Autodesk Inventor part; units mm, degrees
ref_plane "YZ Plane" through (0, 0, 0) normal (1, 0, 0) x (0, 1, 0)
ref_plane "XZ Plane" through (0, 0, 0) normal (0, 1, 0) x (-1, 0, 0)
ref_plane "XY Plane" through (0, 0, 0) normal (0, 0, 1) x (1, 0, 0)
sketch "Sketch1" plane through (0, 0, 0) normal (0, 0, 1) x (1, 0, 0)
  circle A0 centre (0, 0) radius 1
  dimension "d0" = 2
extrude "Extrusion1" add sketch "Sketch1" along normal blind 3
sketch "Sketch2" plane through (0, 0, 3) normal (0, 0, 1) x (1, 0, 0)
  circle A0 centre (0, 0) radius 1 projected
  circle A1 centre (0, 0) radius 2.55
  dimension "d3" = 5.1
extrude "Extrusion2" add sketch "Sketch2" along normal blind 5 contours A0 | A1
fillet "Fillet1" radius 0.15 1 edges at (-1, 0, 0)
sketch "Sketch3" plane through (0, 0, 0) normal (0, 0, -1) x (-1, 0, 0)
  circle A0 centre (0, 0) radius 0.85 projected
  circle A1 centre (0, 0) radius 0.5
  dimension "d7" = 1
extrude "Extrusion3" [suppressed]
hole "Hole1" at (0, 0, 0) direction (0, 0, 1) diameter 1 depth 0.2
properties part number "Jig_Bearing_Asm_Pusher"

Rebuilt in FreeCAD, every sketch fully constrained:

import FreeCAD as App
import Part
import Sketcher
from FreeCAD import Vector
Q = App.Units.Quantity


def edges_at(feature, points):
    """Names of the edges that pass closest to the given points."""
    edges = feature.Shape.Edges
    near = lambda p: min(range(len(edges)), key=lambda i: edges[i].distToShape(Part.Vertex(*p))[0])
    return sorted({f"Edge{near(p) + 1}" for p in points})

doc = App.newDocument("Part")
body = doc.addObject("PartDesign::Body", "Body")

# Sketch on XY plane
sketch1 = body.newObject("Sketcher::SketchObject", "Sketch")
sketch1.AttachmentSupport = (doc.getObject("XY_Plane"), [""])
sketch1.MapMode = "FlatFace"
sketch1.addGeometry(Part.Circle(Vector(0, 0, 0), Vector(0, 0, 1), 1), False)
sketch1.addConstraint(Sketcher.Constraint("Coincident", 0, 3, -1, 1))
sketch1.addConstraint(Sketcher.Constraint("Diameter", 0, Q("2 mm")))
pad1 = body.newObject("PartDesign::Pad", "Pad")
pad1.Profile = sketch1
pad1.Length = 3

# Sketch on XY plane
sketch2 = body.newObject("Sketcher::SketchObject", "Sketch001")
sketch2.AttachmentSupport = (doc.getObject("XY_Plane"), [""])
sketch2.MapMode = "FlatFace"
sketch2.AttachmentOffset = App.Placement(Vector(0, 0, 3), App.Rotation())
sketch2.addGeometry(Part.Circle(Vector(0, 0, 0), Vector(0, 0, 1), 2.5), False)
sketch2.addConstraint(Sketcher.Constraint("Coincident", 0, 3, -1, 1))
sketch2.addConstraint(Sketcher.Constraint("Diameter", 0, Q("5.1 mm")))
pad2 = body.newObject("PartDesign::Pad", "Pad001")
pad2.Profile = sketch2
pad2.Length = 5
doc.recompute()

fillet = body.newObject("PartDesign::Fillet", "Fillet")
fillet.Base = (pad2, edges_at(pad2, [(-1, 0, 0)]))
fillet.Radius = 0.15

# Sketch on XY plane
sketch3 = body.newObject("Sketcher::SketchObject", "Sketch002")
sketch3.AttachmentSupport = (doc.getObject("XY_Plane"), [""])
sketch3.MapMode = "FlatFace"
sketch3.addGeometry(Part.Circle(Vector(0, 0, 0), Vector(0, 0, 1), 0.5), False)
sketch3.addConstraint(Sketcher.Constraint("Coincident", 0, 3, -1, 1))
sketch3.addConstraint(Sketcher.Constraint("Diameter", 0, Q("1 mm")))
doc.recompute()
hole = body.newObject("PartDesign::Hole", "Hole")
hole.Profile = sketch3
hole.ThreadType = "None"
hole.Diameter = 1
hole.DepthType = "Dimension"
hole.Depth = 0.2
hole.DrillPoint = "Flat"
hole.Reversed = True

doc.recompute()
